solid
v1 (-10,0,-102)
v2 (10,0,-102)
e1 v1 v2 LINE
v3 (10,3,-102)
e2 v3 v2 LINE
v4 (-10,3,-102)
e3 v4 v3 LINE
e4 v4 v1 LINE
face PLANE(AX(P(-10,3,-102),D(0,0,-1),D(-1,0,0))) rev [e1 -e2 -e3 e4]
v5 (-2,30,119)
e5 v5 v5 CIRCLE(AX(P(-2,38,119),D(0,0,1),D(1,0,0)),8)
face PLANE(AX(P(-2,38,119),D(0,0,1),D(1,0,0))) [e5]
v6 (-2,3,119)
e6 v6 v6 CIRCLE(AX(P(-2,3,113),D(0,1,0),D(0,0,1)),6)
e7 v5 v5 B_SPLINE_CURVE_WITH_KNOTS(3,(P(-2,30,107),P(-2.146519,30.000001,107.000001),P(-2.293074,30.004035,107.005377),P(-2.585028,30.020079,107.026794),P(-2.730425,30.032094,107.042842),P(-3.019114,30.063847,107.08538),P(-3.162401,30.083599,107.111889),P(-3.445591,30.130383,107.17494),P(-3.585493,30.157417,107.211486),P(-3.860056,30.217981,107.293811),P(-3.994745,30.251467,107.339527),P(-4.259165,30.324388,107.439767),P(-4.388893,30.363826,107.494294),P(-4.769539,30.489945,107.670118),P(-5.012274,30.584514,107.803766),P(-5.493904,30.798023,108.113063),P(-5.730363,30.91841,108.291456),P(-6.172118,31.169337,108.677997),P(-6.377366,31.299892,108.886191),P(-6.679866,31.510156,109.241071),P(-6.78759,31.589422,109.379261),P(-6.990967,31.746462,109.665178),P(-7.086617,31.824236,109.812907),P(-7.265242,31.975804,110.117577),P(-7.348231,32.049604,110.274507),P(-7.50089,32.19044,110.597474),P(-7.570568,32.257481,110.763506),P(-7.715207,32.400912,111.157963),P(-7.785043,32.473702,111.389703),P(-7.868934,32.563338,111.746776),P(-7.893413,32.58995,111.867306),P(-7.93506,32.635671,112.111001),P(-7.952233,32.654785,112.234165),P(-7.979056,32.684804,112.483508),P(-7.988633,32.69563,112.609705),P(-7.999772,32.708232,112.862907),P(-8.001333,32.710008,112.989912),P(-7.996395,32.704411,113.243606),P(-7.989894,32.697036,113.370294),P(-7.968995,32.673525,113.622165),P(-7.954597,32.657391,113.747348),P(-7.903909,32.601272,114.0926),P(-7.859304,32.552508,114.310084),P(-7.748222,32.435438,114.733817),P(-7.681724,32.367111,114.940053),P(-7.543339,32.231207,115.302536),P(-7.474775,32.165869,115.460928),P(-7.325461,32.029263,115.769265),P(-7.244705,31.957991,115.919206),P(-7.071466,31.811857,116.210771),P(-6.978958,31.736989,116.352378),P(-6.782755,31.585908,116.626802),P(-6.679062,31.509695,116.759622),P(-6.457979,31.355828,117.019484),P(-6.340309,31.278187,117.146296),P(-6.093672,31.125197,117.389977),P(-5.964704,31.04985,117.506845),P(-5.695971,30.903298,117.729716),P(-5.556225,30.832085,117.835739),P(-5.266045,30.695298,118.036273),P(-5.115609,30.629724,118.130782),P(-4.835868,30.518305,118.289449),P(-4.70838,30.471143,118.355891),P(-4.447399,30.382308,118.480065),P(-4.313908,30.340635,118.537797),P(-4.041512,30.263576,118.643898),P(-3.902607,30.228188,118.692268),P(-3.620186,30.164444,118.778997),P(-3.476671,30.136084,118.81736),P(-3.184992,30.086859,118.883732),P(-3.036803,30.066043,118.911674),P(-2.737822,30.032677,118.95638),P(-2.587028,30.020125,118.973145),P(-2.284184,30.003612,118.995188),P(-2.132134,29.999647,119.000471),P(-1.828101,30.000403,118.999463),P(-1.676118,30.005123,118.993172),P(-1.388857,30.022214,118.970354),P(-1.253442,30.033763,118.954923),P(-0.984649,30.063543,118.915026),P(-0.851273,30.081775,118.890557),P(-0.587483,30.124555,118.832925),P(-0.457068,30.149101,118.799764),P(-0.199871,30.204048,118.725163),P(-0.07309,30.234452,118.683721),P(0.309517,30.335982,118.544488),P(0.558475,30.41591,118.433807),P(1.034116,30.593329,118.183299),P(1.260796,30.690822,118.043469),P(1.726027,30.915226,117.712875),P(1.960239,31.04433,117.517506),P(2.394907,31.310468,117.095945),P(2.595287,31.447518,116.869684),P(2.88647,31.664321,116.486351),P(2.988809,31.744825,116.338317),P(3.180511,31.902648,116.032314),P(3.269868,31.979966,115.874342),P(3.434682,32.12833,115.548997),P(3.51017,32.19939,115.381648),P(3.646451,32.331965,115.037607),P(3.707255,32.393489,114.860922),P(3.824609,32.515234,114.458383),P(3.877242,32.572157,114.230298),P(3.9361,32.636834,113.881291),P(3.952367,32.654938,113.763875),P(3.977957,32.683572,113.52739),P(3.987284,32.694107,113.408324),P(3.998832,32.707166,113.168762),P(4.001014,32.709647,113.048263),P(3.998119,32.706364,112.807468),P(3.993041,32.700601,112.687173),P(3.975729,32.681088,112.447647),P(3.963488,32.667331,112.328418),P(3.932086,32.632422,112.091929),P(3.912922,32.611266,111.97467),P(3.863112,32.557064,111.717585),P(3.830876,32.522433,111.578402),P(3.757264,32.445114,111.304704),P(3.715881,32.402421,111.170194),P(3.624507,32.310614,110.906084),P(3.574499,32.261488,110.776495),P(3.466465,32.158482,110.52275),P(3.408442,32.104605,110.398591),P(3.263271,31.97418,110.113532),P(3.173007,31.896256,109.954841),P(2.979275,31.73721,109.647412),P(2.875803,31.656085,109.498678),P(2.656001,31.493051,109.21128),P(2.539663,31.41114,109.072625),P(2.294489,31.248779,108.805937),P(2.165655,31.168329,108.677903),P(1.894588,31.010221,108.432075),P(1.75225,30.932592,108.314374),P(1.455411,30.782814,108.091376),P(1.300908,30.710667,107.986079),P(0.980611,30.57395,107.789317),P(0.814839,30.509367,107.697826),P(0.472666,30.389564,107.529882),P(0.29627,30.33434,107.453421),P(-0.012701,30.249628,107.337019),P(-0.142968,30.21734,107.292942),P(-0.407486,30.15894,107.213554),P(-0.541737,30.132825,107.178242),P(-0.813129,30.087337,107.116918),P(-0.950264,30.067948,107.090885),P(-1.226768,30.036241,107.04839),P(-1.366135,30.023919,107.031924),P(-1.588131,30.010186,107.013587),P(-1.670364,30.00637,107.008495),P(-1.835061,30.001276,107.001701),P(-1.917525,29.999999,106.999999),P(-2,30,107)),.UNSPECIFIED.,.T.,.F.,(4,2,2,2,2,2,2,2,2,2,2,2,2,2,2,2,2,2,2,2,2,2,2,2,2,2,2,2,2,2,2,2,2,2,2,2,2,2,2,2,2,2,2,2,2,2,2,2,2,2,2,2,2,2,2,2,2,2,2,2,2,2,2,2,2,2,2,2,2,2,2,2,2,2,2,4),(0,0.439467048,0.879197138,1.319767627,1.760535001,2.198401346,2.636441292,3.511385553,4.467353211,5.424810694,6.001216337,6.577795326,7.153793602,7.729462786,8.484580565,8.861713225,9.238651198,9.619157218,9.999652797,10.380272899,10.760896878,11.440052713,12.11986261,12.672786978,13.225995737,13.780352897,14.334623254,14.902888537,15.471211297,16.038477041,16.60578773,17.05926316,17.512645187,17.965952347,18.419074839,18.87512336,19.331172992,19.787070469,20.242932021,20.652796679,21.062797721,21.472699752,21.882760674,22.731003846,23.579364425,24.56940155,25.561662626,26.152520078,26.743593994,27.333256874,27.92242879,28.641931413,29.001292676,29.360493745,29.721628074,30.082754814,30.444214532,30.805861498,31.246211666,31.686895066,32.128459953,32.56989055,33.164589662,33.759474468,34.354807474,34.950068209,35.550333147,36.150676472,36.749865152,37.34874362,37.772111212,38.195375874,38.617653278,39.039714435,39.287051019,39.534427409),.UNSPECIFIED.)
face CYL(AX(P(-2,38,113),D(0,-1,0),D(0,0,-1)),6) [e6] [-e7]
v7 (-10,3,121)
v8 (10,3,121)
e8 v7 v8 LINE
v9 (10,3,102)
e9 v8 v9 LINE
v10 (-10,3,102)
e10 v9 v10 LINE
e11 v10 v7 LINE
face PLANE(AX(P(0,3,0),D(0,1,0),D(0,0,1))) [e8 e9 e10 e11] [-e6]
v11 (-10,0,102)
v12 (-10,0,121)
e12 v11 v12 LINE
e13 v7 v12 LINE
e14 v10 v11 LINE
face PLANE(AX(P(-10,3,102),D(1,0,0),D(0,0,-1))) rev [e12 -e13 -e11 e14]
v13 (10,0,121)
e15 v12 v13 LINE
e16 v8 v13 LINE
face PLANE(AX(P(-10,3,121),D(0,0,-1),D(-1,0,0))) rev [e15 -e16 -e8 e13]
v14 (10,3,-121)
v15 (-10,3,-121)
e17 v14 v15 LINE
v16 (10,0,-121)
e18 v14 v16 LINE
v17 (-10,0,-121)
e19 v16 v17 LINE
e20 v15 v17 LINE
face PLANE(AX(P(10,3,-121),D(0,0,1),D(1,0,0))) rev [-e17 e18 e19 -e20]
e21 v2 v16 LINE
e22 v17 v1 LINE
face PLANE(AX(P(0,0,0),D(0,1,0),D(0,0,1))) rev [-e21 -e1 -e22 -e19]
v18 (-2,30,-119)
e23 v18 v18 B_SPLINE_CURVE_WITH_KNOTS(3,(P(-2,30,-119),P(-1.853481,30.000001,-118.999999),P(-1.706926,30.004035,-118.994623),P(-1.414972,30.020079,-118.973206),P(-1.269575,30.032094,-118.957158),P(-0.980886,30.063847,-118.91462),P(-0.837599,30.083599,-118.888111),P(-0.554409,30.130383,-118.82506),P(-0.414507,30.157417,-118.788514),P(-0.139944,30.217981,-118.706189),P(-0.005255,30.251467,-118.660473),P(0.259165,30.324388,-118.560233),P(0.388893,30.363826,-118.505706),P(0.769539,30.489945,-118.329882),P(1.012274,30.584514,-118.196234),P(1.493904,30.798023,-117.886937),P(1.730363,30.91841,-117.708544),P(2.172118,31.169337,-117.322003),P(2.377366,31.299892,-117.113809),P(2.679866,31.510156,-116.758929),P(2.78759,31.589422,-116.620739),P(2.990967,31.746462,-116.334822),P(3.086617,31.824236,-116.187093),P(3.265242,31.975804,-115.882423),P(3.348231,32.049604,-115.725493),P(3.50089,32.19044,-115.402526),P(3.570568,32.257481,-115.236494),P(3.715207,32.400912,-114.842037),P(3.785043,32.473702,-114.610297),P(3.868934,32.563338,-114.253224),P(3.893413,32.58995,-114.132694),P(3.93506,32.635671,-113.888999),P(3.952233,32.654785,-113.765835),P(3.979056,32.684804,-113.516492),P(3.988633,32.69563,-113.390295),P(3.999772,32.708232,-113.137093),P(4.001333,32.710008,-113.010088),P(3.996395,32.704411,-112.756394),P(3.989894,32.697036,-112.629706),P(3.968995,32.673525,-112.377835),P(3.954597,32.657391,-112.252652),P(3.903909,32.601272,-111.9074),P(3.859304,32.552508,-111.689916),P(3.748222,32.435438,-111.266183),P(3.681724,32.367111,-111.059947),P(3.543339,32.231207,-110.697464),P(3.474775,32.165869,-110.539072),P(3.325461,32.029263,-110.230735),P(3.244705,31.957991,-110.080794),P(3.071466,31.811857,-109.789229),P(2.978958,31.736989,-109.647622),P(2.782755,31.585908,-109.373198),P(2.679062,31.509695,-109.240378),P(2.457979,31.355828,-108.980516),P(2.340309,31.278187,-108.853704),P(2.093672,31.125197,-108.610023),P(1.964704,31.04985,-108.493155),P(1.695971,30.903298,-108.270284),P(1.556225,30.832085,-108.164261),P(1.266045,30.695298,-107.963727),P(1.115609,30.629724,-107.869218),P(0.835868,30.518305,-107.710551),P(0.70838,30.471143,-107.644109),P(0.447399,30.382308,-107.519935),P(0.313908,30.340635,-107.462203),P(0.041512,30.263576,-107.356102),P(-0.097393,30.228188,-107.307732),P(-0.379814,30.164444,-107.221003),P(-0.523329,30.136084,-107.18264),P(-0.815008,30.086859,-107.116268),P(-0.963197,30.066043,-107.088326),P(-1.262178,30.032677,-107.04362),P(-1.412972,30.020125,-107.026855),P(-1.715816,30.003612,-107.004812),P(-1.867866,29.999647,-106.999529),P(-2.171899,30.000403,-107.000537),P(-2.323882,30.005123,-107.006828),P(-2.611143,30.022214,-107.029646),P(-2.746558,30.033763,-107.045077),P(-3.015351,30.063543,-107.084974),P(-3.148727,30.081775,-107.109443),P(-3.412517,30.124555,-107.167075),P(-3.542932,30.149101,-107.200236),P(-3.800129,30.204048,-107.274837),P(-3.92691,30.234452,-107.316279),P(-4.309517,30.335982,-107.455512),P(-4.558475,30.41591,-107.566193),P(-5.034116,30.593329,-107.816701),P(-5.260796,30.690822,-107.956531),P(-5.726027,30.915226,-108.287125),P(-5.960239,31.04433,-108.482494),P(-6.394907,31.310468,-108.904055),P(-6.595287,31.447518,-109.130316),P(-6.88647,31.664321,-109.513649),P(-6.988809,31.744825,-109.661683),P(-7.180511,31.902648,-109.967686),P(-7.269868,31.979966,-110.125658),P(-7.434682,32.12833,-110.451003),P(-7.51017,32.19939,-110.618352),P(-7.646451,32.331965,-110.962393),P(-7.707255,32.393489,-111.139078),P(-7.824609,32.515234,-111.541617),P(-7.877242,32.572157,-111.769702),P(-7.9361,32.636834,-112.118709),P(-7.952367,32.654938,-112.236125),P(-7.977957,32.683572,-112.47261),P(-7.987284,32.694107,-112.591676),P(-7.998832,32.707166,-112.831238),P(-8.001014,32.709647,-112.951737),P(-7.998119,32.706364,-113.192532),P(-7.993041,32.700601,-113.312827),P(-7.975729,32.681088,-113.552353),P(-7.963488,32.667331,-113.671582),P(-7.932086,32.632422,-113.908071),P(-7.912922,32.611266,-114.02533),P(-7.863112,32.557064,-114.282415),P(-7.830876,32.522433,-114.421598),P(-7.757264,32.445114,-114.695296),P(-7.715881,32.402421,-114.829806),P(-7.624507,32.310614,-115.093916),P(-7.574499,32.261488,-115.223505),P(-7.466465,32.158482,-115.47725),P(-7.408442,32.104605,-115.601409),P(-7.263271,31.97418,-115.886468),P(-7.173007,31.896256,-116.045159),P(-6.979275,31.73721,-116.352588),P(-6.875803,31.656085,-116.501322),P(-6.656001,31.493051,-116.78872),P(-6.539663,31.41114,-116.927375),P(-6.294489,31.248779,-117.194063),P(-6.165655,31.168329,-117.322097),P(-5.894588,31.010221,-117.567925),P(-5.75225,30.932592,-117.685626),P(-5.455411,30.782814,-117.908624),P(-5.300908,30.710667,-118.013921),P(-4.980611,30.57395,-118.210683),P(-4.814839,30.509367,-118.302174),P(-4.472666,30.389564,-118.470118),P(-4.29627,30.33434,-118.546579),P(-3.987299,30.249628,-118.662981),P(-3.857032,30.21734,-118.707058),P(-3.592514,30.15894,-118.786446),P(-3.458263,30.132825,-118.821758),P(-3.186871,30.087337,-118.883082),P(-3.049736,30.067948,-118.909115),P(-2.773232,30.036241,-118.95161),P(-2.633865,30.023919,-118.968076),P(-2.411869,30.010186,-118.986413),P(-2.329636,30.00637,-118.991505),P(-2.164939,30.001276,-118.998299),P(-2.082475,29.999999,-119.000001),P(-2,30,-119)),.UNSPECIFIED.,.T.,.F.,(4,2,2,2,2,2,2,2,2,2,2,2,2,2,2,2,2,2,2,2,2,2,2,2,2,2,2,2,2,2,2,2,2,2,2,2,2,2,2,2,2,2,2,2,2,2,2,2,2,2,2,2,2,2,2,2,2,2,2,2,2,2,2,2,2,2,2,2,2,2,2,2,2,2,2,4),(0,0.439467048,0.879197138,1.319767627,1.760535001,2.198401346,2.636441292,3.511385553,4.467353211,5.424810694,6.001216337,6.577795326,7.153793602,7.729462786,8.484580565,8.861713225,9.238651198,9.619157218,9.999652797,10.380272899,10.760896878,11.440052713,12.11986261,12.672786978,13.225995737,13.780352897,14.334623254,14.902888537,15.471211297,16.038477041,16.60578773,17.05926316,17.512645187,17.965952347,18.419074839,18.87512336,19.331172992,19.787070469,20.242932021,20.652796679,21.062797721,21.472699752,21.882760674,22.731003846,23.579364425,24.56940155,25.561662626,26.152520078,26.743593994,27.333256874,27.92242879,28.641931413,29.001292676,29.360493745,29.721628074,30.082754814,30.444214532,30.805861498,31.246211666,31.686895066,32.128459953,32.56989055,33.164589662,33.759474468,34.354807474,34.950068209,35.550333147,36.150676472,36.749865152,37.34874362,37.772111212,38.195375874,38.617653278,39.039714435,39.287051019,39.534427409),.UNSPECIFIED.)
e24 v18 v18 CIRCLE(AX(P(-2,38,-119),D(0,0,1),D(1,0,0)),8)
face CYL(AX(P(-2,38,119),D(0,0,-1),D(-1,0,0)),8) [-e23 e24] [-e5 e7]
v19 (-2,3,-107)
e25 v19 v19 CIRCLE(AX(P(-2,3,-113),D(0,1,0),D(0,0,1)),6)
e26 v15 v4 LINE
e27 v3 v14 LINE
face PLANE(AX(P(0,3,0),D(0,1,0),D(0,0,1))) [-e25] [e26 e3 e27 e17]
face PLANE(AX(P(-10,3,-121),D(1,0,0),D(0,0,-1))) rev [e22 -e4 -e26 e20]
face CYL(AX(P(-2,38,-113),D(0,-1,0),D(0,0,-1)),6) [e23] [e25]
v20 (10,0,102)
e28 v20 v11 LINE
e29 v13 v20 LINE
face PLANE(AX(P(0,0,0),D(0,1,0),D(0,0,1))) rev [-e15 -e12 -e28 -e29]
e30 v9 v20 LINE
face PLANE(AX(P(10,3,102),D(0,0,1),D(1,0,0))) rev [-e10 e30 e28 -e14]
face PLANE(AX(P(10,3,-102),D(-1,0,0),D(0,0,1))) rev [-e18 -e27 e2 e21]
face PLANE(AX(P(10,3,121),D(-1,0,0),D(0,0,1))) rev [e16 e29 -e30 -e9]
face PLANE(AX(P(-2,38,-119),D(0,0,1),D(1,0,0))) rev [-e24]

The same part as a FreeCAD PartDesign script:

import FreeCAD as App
import Part
import Sketcher

doc = App.newDocument("Part")
body = doc.addObject("PartDesign::Body", "Body")

sketch1 = doc.addObject("Sketcher::SketchObject", "Sketch")
body.addObject(sketch1)
sketch1.AttachmentSupport = (doc.XZ_Plane, [""])
sketch1.MapMode = "FlatFace"
sketch1.addGeometry([
    Part.LineSegment(App.Vector(-10, 102, 0), App.Vector(-10, 121, 0)),
    Part.LineSegment(App.Vector(-10, 121, 0), App.Vector(10, 121, 0)),
    Part.LineSegment(App.Vector(10, 121, 0), App.Vector(10, 102, 0)),
    Part.LineSegment(App.Vector(10, 102, 0), App.Vector(-10, 102, 0)),
], False)
sketch1.addConstraint([
    Sketcher.Constraint("Coincident", 0, 2, 1, 1),
    Sketcher.Constraint("Coincident", 1, 2, 2, 1),
    Sketcher.Constraint("Coincident", 2, 2, 3, 1),
    Sketcher.Constraint("Coincident", 3, 2, 0, 1),
    Sketcher.Constraint("Vertical", 0),
    Sketcher.Constraint("Horizontal", 1),
    Sketcher.Constraint("Vertical", 2),
    Sketcher.Constraint("Horizontal", 3),
    Sketcher.Constraint("DistanceX", 1, 1, 1, 2, 20.0),
    Sketcher.Constraint("DistanceY", 0, 1, 0, 2, 19.0),
    Sketcher.Constraint("DistanceX", 0, 2, -1, 1, 10.0),
    Sketcher.Constraint("DistanceY", -1, 1, 0, 2, 121.0),
])
pad1 = doc.addObject("PartDesign::Pad", "Pad")
body.addObject(pad1)
pad1.Profile = sketch1
pad1.Length = 3
pad1.Reversed = True

sketch2 = doc.addObject("Sketcher::SketchObject", "Sketch001")
body.addObject(sketch2)
sketch2.AttachmentSupport = (doc.XZ_Plane, [""])
sketch2.MapMode = "FlatFace"
sketch2.AttachmentOffset = App.Placement(App.Vector(0, 0, -3), App.Rotation())
sketch2.addGeometry(Part.Circle(App.Vector(-2, 113, 0), App.Vector(0, 0, 1), 6), False)
sketch2.addConstraint([
    Sketcher.Constraint("Diameter", 0, 12.0),
    Sketcher.Constraint("DistanceX", 0, 3, -1, 1, 2.0),
    Sketcher.Constraint("DistanceY", -1, 1, 0, 3, 113.0),
])
pad2 = doc.addObject("PartDesign::Pad", "Pad001")
body.addObject(pad2)
pad2.Profile = sketch2
pad2.Length = 35
pad2.Reversed = True
body2 = doc.addObject("PartDesign::Body", "Body001")

sketch3 = doc.addObject("Sketcher::SketchObject", "Sketch002")
body2.addObject(sketch3)
sketch3.AttachmentSupport = (doc.getObject("XZ_Plane001"), [""])
sketch3.MapMode = "FlatFace"
sketch3.addGeometry([
    Part.LineSegment(App.Vector(-10, -121, 0), App.Vector(-10, -102, 0)),
    Part.LineSegment(App.Vector(-10, -102, 0), App.Vector(10, -102, 0)),
    Part.LineSegment(App.Vector(10, -102, 0), App.Vector(10, -121, 0)),
    Part.LineSegment(App.Vector(10, -121, 0), App.Vector(-10, -121, 0)),
], False)
sketch3.addConstraint([
    Sketcher.Constraint("Coincident", 0, 2, 1, 1),
    Sketcher.Constraint("Coincident", 1, 2, 2, 1),
    Sketcher.Constraint("Coincident", 2, 2, 3, 1),
    Sketcher.Constraint("Coincident", 3, 2, 0, 1),
    Sketcher.Constraint("Vertical", 0),
    Sketcher.Constraint("Horizontal", 1),
    Sketcher.Constraint("Vertical", 2),
    Sketcher.Constraint("Horizontal", 3),
    Sketcher.Constraint("DistanceX", 1, 1, 1, 2, 20.0),
    Sketcher.Constraint("DistanceY", 0, 1, 0, 2, 19.0),
    Sketcher.Constraint("DistanceX", 0, 2, -1, 1, 10.0),
    Sketcher.Constraint("DistanceY", 0, 2, -1, 1, 102.0),
])
pad3 = doc.addObject("PartDesign::Pad", "Pad002")
body2.addObject(pad3)
pad3.Profile = sketch3
pad3.Length = 3
pad3.Reversed = True

sketch4 = doc.addObject("Sketcher::SketchObject", "Sketch003")
body2.addObject(sketch4)
sketch4.AttachmentSupport = (doc.getObject("XZ_Plane001"), [""])
sketch4.MapMode = "FlatFace"
sketch4.AttachmentOffset = App.Placement(App.Vector(0, 0, -3), App.Rotation())
sketch4.addGeometry(Part.Circle(App.Vector(-2, -113, 0), App.Vector(0, 0, 1), 6), False)
sketch4.addConstraint([
    Sketcher.Constraint("Diameter", 0, 12.0),
    Sketcher.Constraint("DistanceX", 0, 3, -1, 1, 2.0),
    Sketcher.Constraint("DistanceY", 0, 3, -1, 1, 113.0),
])
pad4 = doc.addObject("PartDesign::Pad", "Pad003")
body2.addObject(pad4)
pad4.Profile = sketch4
pad4.Length = 35
pad4.Reversed = True
body.AllowCompound = True
doc.recompute()

boolean = doc.addObject("PartDesign::Boolean", "Boolean")
body.addObject(boolean)
boolean.Type = "Fuse"
boolean.addObjects([body2])

sketch5 = doc.addObject("Sketcher::SketchObject", "Sketch004")
body.addObject(sketch5)
sketch5.AttachmentSupport = (doc.XY_Plane, [""])
sketch5.MapMode = "FlatFace"
sketch5.AttachmentOffset = App.Placement(App.Vector(0, 0, -119), App.Rotation())
sketch5.addGeometry(Part.Circle(App.Vector(-2, 38, 0), App.Vector(0, 0, 1), 8), False)
sketch5.addConstraint([
    Sketcher.Constraint("Diameter", 0, 16.0),
    Sketcher.Constraint("DistanceX", 0, 3, -1, 1, 2.0),
    Sketcher.Constraint("DistanceY", -1, 1, 0, 3, 38.0),
])
pad5 = doc.addObject("PartDesign::Pad", "Pad004")
body.addObject(pad5)
pad5.Profile = sketch5
pad5.Length = 238

doc.recompute()
